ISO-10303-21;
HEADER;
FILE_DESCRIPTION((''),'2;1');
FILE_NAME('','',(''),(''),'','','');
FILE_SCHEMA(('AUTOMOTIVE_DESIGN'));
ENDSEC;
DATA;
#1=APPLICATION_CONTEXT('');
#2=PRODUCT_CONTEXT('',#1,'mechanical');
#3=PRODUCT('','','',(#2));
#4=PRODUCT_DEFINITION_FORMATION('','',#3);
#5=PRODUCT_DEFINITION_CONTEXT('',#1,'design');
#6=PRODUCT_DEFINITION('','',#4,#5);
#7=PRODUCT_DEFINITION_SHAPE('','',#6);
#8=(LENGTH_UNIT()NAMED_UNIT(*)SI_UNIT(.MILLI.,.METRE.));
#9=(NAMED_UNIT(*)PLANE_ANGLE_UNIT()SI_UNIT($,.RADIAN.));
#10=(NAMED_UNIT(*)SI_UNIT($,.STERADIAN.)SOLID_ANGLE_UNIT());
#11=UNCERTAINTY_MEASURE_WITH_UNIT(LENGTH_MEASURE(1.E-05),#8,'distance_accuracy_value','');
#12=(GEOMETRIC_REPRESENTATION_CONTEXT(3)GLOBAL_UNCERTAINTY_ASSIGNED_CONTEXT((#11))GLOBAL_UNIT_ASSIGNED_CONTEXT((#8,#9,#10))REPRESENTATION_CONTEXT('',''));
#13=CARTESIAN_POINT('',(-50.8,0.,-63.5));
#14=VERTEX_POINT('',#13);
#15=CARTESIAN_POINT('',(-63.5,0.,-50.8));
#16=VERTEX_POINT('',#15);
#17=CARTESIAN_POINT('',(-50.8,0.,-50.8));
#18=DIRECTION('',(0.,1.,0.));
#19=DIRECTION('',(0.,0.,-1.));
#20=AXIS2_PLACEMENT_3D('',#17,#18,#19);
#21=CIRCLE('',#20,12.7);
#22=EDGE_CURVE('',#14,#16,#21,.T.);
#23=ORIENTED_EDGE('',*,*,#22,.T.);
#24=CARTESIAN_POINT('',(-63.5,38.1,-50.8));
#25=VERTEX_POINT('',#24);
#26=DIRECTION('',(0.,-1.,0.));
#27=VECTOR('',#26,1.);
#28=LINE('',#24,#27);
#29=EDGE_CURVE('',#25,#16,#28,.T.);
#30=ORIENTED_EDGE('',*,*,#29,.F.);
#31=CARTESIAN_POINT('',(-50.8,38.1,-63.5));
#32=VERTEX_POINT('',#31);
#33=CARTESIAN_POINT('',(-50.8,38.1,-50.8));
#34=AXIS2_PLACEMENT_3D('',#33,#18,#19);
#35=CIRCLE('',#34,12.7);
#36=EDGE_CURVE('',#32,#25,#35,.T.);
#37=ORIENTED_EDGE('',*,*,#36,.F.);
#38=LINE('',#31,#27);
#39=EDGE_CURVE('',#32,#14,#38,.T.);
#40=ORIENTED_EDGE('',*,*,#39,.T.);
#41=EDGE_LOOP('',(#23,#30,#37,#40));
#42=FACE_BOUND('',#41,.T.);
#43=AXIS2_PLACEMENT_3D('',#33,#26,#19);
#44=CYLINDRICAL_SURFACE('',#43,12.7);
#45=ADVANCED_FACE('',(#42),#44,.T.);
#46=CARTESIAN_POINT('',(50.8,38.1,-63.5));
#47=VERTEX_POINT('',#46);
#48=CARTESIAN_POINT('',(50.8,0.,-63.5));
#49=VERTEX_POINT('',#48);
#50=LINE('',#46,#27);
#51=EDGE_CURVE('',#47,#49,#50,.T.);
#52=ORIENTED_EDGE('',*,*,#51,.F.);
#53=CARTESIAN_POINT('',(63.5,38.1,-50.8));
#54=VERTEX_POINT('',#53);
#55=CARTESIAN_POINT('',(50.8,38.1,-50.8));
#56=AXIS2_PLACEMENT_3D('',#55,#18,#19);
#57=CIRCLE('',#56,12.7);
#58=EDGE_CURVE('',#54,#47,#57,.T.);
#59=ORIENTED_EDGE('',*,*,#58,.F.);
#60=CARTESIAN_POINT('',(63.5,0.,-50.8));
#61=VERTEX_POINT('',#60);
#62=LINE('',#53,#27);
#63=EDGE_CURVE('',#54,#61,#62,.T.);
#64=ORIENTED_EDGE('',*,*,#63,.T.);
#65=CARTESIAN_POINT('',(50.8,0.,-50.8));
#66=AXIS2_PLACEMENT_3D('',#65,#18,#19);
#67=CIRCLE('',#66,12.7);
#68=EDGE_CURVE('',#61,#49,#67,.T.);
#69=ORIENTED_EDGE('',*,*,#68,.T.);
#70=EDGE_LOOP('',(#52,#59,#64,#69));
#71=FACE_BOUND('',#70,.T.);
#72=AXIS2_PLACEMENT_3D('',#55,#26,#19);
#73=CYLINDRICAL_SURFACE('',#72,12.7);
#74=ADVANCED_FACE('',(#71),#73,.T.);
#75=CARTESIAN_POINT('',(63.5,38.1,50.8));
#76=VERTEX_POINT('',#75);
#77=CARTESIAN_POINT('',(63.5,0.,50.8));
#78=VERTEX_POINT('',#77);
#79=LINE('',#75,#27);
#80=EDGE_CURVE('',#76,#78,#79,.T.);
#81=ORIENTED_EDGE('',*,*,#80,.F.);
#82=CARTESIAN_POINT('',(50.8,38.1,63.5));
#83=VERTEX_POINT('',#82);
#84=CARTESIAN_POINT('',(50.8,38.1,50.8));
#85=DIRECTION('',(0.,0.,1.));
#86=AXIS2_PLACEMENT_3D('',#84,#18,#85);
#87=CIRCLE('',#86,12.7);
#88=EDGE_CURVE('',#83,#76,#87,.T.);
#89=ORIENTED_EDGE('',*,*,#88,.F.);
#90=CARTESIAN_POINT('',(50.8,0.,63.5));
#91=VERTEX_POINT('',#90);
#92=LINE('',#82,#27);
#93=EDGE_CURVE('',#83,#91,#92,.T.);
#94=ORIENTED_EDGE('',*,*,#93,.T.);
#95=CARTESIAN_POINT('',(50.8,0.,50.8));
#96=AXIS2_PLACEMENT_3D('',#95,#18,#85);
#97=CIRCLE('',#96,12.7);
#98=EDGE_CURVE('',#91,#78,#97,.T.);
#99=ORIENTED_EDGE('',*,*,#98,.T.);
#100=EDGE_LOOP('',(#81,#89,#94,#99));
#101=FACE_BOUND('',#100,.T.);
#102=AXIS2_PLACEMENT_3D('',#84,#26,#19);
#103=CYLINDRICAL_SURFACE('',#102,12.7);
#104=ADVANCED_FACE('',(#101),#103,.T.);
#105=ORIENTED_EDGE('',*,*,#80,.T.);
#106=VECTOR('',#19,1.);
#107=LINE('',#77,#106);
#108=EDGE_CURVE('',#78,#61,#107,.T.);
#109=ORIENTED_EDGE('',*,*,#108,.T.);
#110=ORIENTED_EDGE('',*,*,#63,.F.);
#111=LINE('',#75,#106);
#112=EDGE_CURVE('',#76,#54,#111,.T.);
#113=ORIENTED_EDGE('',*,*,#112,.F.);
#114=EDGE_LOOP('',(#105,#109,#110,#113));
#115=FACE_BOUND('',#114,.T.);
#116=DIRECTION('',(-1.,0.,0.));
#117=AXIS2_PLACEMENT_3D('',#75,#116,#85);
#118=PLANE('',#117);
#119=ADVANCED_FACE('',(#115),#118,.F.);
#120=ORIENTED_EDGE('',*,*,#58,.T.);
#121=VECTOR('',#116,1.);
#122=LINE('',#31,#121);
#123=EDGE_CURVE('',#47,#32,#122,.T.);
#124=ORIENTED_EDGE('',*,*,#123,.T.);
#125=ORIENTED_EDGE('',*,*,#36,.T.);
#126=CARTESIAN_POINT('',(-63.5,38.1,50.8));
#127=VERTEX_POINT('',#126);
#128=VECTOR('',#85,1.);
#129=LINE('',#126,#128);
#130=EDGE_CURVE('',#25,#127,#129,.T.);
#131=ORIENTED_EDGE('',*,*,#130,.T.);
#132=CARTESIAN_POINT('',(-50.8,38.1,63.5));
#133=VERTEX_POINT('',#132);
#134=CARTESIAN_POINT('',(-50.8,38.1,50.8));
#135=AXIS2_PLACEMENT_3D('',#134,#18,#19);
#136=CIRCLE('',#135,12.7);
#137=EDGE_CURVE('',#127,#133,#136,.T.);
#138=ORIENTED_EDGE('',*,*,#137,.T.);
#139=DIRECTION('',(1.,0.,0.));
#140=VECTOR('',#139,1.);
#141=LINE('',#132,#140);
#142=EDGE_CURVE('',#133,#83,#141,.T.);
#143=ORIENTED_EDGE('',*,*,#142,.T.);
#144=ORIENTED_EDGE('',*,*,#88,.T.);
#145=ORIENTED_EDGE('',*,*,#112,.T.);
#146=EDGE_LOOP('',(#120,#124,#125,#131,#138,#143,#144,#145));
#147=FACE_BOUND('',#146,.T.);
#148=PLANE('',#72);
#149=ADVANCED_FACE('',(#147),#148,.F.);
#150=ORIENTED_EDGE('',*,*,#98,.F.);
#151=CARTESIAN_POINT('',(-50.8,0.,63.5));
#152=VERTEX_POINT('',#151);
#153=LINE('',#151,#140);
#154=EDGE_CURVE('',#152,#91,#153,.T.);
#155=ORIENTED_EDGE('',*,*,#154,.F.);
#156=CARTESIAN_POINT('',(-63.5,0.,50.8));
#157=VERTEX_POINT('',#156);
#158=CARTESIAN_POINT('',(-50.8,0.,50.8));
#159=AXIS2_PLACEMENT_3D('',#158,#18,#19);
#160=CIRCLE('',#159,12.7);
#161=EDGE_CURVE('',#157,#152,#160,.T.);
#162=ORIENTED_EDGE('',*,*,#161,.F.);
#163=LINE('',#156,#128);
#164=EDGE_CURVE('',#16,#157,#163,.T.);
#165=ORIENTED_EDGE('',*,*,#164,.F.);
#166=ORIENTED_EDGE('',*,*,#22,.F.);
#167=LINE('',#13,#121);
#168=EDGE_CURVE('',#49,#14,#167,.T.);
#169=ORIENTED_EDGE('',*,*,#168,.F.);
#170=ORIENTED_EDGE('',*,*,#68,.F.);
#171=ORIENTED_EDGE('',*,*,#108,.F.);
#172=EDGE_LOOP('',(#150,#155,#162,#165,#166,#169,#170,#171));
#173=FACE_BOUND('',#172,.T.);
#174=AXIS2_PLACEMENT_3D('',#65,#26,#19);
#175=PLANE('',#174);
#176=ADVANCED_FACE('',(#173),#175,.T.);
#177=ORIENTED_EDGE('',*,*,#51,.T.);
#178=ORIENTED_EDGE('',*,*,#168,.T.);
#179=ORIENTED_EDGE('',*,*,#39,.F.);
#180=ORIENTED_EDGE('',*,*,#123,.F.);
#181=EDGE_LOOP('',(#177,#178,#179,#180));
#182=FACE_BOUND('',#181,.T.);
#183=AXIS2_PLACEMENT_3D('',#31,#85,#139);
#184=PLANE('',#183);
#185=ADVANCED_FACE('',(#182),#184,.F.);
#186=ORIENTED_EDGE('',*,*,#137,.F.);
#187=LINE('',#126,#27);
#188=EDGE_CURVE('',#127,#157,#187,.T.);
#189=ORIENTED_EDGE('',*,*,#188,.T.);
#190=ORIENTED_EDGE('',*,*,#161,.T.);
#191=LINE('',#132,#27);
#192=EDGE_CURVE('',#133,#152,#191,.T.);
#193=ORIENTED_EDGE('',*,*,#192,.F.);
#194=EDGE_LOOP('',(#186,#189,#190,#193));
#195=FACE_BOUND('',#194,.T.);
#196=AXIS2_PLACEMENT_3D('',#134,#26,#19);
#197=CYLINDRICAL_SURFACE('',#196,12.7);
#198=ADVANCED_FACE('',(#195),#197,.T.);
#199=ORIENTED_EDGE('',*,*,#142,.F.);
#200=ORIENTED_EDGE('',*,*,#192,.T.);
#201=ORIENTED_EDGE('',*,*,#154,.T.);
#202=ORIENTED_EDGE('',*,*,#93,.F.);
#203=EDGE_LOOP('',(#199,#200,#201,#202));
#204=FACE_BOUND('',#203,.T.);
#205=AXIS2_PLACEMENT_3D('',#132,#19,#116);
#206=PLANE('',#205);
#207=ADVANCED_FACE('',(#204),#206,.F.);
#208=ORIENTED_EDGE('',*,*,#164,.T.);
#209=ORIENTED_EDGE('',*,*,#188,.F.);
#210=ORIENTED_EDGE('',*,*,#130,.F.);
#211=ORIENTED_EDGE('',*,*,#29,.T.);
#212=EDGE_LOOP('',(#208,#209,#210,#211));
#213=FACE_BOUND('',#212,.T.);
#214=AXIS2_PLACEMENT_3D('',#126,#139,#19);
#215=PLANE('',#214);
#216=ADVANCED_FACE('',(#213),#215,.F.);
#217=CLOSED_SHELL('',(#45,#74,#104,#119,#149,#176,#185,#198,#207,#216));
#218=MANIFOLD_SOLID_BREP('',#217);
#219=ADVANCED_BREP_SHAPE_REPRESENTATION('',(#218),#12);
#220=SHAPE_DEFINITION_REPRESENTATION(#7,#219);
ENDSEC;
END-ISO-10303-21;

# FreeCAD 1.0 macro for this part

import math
import FreeCAD as App
import Part
import Sketcher
from FreeCAD import Vector
Q = App.Units.Quantity

doc = App.newDocument("Part")
body = doc.addObject("PartDesign::Body", "Body")

sketch1 = body.newObject("Sketcher::SketchObject", "Sketch")
sketch1.AttachmentSupport = (doc.getObject("XZ_Plane"), [""])
sketch1.MapMode = "FlatFace"
sketch1.addGeometry([
    Part.LineSegment(Vector(-51, 64, 0), Vector(51, 64, 0)),
    Part.ArcOfCircle(Part.Circle(Vector(51, 51, 0), Vector(0, 0, 1), 13), math.radians(0), math.radians(90)),
    Part.LineSegment(Vector(64, 51, 0), Vector(64, -51, 0)),
    Part.ArcOfCircle(Part.Circle(Vector(51, -51, 0), Vector(0, 0, 1), 13), math.radians(-90), math.radians(0)),
    Part.LineSegment(Vector(51, -64, 0), Vector(-51, -64, 0)),
    Part.ArcOfCircle(Part.Circle(Vector(-51, -51, 0), Vector(0, 0, 1), 13), math.radians(180), math.radians(270)),
    Part.LineSegment(Vector(-64, -51, 0), Vector(-64, 51, 0)),
    Part.ArcOfCircle(Part.Circle(Vector(-51, 51, 0), Vector(0, 0, 1), 13), math.radians(90), math.radians(180)),
], False)
sketch1.addConstraint([
    Sketcher.Constraint("Tangent", 0, 2, 1, 2),
    Sketcher.Constraint("Tangent", 1, 1, 2, 1),
    Sketcher.Constraint("Tangent", 2, 2, 3, 2),
    Sketcher.Constraint("Tangent", 3, 1, 4, 1),
    Sketcher.Constraint("Tangent", 4, 2, 5, 2),
    Sketcher.Constraint("Tangent", 5, 1, 6, 1),
    Sketcher.Constraint("Tangent", 6, 2, 7, 2),
    Sketcher.Constraint("Tangent", 7, 1, 0, 1),
    Sketcher.Constraint("Horizontal", 0),
    Sketcher.Constraint("Vertical", 2),
    Sketcher.Constraint("Horizontal", 4),
    Sketcher.Constraint("Vertical", 6),
    Sketcher.Constraint("Equal", 1, 3),
    Sketcher.Constraint("Equal", 3, 5),
    Sketcher.Constraint("Equal", 5, 7),
    Sketcher.Constraint("Symmetric", 1, 3, 5, 3, -1, 1),
    Sketcher.Constraint("Equal", 4, 2),
    Sketcher.Constraint("Radius", 1, Q("0.5 in")),
    Sketcher.Constraint("DistanceX", 0, 1, 0, 2, Q("4 in")),
])
pad1 = body.newObject("PartDesign::Pad", "Pad")
pad1.Profile = sketch1
pad1.Length = Q("1.5 in")
pad1.Reversed = True

doc.recompute()
